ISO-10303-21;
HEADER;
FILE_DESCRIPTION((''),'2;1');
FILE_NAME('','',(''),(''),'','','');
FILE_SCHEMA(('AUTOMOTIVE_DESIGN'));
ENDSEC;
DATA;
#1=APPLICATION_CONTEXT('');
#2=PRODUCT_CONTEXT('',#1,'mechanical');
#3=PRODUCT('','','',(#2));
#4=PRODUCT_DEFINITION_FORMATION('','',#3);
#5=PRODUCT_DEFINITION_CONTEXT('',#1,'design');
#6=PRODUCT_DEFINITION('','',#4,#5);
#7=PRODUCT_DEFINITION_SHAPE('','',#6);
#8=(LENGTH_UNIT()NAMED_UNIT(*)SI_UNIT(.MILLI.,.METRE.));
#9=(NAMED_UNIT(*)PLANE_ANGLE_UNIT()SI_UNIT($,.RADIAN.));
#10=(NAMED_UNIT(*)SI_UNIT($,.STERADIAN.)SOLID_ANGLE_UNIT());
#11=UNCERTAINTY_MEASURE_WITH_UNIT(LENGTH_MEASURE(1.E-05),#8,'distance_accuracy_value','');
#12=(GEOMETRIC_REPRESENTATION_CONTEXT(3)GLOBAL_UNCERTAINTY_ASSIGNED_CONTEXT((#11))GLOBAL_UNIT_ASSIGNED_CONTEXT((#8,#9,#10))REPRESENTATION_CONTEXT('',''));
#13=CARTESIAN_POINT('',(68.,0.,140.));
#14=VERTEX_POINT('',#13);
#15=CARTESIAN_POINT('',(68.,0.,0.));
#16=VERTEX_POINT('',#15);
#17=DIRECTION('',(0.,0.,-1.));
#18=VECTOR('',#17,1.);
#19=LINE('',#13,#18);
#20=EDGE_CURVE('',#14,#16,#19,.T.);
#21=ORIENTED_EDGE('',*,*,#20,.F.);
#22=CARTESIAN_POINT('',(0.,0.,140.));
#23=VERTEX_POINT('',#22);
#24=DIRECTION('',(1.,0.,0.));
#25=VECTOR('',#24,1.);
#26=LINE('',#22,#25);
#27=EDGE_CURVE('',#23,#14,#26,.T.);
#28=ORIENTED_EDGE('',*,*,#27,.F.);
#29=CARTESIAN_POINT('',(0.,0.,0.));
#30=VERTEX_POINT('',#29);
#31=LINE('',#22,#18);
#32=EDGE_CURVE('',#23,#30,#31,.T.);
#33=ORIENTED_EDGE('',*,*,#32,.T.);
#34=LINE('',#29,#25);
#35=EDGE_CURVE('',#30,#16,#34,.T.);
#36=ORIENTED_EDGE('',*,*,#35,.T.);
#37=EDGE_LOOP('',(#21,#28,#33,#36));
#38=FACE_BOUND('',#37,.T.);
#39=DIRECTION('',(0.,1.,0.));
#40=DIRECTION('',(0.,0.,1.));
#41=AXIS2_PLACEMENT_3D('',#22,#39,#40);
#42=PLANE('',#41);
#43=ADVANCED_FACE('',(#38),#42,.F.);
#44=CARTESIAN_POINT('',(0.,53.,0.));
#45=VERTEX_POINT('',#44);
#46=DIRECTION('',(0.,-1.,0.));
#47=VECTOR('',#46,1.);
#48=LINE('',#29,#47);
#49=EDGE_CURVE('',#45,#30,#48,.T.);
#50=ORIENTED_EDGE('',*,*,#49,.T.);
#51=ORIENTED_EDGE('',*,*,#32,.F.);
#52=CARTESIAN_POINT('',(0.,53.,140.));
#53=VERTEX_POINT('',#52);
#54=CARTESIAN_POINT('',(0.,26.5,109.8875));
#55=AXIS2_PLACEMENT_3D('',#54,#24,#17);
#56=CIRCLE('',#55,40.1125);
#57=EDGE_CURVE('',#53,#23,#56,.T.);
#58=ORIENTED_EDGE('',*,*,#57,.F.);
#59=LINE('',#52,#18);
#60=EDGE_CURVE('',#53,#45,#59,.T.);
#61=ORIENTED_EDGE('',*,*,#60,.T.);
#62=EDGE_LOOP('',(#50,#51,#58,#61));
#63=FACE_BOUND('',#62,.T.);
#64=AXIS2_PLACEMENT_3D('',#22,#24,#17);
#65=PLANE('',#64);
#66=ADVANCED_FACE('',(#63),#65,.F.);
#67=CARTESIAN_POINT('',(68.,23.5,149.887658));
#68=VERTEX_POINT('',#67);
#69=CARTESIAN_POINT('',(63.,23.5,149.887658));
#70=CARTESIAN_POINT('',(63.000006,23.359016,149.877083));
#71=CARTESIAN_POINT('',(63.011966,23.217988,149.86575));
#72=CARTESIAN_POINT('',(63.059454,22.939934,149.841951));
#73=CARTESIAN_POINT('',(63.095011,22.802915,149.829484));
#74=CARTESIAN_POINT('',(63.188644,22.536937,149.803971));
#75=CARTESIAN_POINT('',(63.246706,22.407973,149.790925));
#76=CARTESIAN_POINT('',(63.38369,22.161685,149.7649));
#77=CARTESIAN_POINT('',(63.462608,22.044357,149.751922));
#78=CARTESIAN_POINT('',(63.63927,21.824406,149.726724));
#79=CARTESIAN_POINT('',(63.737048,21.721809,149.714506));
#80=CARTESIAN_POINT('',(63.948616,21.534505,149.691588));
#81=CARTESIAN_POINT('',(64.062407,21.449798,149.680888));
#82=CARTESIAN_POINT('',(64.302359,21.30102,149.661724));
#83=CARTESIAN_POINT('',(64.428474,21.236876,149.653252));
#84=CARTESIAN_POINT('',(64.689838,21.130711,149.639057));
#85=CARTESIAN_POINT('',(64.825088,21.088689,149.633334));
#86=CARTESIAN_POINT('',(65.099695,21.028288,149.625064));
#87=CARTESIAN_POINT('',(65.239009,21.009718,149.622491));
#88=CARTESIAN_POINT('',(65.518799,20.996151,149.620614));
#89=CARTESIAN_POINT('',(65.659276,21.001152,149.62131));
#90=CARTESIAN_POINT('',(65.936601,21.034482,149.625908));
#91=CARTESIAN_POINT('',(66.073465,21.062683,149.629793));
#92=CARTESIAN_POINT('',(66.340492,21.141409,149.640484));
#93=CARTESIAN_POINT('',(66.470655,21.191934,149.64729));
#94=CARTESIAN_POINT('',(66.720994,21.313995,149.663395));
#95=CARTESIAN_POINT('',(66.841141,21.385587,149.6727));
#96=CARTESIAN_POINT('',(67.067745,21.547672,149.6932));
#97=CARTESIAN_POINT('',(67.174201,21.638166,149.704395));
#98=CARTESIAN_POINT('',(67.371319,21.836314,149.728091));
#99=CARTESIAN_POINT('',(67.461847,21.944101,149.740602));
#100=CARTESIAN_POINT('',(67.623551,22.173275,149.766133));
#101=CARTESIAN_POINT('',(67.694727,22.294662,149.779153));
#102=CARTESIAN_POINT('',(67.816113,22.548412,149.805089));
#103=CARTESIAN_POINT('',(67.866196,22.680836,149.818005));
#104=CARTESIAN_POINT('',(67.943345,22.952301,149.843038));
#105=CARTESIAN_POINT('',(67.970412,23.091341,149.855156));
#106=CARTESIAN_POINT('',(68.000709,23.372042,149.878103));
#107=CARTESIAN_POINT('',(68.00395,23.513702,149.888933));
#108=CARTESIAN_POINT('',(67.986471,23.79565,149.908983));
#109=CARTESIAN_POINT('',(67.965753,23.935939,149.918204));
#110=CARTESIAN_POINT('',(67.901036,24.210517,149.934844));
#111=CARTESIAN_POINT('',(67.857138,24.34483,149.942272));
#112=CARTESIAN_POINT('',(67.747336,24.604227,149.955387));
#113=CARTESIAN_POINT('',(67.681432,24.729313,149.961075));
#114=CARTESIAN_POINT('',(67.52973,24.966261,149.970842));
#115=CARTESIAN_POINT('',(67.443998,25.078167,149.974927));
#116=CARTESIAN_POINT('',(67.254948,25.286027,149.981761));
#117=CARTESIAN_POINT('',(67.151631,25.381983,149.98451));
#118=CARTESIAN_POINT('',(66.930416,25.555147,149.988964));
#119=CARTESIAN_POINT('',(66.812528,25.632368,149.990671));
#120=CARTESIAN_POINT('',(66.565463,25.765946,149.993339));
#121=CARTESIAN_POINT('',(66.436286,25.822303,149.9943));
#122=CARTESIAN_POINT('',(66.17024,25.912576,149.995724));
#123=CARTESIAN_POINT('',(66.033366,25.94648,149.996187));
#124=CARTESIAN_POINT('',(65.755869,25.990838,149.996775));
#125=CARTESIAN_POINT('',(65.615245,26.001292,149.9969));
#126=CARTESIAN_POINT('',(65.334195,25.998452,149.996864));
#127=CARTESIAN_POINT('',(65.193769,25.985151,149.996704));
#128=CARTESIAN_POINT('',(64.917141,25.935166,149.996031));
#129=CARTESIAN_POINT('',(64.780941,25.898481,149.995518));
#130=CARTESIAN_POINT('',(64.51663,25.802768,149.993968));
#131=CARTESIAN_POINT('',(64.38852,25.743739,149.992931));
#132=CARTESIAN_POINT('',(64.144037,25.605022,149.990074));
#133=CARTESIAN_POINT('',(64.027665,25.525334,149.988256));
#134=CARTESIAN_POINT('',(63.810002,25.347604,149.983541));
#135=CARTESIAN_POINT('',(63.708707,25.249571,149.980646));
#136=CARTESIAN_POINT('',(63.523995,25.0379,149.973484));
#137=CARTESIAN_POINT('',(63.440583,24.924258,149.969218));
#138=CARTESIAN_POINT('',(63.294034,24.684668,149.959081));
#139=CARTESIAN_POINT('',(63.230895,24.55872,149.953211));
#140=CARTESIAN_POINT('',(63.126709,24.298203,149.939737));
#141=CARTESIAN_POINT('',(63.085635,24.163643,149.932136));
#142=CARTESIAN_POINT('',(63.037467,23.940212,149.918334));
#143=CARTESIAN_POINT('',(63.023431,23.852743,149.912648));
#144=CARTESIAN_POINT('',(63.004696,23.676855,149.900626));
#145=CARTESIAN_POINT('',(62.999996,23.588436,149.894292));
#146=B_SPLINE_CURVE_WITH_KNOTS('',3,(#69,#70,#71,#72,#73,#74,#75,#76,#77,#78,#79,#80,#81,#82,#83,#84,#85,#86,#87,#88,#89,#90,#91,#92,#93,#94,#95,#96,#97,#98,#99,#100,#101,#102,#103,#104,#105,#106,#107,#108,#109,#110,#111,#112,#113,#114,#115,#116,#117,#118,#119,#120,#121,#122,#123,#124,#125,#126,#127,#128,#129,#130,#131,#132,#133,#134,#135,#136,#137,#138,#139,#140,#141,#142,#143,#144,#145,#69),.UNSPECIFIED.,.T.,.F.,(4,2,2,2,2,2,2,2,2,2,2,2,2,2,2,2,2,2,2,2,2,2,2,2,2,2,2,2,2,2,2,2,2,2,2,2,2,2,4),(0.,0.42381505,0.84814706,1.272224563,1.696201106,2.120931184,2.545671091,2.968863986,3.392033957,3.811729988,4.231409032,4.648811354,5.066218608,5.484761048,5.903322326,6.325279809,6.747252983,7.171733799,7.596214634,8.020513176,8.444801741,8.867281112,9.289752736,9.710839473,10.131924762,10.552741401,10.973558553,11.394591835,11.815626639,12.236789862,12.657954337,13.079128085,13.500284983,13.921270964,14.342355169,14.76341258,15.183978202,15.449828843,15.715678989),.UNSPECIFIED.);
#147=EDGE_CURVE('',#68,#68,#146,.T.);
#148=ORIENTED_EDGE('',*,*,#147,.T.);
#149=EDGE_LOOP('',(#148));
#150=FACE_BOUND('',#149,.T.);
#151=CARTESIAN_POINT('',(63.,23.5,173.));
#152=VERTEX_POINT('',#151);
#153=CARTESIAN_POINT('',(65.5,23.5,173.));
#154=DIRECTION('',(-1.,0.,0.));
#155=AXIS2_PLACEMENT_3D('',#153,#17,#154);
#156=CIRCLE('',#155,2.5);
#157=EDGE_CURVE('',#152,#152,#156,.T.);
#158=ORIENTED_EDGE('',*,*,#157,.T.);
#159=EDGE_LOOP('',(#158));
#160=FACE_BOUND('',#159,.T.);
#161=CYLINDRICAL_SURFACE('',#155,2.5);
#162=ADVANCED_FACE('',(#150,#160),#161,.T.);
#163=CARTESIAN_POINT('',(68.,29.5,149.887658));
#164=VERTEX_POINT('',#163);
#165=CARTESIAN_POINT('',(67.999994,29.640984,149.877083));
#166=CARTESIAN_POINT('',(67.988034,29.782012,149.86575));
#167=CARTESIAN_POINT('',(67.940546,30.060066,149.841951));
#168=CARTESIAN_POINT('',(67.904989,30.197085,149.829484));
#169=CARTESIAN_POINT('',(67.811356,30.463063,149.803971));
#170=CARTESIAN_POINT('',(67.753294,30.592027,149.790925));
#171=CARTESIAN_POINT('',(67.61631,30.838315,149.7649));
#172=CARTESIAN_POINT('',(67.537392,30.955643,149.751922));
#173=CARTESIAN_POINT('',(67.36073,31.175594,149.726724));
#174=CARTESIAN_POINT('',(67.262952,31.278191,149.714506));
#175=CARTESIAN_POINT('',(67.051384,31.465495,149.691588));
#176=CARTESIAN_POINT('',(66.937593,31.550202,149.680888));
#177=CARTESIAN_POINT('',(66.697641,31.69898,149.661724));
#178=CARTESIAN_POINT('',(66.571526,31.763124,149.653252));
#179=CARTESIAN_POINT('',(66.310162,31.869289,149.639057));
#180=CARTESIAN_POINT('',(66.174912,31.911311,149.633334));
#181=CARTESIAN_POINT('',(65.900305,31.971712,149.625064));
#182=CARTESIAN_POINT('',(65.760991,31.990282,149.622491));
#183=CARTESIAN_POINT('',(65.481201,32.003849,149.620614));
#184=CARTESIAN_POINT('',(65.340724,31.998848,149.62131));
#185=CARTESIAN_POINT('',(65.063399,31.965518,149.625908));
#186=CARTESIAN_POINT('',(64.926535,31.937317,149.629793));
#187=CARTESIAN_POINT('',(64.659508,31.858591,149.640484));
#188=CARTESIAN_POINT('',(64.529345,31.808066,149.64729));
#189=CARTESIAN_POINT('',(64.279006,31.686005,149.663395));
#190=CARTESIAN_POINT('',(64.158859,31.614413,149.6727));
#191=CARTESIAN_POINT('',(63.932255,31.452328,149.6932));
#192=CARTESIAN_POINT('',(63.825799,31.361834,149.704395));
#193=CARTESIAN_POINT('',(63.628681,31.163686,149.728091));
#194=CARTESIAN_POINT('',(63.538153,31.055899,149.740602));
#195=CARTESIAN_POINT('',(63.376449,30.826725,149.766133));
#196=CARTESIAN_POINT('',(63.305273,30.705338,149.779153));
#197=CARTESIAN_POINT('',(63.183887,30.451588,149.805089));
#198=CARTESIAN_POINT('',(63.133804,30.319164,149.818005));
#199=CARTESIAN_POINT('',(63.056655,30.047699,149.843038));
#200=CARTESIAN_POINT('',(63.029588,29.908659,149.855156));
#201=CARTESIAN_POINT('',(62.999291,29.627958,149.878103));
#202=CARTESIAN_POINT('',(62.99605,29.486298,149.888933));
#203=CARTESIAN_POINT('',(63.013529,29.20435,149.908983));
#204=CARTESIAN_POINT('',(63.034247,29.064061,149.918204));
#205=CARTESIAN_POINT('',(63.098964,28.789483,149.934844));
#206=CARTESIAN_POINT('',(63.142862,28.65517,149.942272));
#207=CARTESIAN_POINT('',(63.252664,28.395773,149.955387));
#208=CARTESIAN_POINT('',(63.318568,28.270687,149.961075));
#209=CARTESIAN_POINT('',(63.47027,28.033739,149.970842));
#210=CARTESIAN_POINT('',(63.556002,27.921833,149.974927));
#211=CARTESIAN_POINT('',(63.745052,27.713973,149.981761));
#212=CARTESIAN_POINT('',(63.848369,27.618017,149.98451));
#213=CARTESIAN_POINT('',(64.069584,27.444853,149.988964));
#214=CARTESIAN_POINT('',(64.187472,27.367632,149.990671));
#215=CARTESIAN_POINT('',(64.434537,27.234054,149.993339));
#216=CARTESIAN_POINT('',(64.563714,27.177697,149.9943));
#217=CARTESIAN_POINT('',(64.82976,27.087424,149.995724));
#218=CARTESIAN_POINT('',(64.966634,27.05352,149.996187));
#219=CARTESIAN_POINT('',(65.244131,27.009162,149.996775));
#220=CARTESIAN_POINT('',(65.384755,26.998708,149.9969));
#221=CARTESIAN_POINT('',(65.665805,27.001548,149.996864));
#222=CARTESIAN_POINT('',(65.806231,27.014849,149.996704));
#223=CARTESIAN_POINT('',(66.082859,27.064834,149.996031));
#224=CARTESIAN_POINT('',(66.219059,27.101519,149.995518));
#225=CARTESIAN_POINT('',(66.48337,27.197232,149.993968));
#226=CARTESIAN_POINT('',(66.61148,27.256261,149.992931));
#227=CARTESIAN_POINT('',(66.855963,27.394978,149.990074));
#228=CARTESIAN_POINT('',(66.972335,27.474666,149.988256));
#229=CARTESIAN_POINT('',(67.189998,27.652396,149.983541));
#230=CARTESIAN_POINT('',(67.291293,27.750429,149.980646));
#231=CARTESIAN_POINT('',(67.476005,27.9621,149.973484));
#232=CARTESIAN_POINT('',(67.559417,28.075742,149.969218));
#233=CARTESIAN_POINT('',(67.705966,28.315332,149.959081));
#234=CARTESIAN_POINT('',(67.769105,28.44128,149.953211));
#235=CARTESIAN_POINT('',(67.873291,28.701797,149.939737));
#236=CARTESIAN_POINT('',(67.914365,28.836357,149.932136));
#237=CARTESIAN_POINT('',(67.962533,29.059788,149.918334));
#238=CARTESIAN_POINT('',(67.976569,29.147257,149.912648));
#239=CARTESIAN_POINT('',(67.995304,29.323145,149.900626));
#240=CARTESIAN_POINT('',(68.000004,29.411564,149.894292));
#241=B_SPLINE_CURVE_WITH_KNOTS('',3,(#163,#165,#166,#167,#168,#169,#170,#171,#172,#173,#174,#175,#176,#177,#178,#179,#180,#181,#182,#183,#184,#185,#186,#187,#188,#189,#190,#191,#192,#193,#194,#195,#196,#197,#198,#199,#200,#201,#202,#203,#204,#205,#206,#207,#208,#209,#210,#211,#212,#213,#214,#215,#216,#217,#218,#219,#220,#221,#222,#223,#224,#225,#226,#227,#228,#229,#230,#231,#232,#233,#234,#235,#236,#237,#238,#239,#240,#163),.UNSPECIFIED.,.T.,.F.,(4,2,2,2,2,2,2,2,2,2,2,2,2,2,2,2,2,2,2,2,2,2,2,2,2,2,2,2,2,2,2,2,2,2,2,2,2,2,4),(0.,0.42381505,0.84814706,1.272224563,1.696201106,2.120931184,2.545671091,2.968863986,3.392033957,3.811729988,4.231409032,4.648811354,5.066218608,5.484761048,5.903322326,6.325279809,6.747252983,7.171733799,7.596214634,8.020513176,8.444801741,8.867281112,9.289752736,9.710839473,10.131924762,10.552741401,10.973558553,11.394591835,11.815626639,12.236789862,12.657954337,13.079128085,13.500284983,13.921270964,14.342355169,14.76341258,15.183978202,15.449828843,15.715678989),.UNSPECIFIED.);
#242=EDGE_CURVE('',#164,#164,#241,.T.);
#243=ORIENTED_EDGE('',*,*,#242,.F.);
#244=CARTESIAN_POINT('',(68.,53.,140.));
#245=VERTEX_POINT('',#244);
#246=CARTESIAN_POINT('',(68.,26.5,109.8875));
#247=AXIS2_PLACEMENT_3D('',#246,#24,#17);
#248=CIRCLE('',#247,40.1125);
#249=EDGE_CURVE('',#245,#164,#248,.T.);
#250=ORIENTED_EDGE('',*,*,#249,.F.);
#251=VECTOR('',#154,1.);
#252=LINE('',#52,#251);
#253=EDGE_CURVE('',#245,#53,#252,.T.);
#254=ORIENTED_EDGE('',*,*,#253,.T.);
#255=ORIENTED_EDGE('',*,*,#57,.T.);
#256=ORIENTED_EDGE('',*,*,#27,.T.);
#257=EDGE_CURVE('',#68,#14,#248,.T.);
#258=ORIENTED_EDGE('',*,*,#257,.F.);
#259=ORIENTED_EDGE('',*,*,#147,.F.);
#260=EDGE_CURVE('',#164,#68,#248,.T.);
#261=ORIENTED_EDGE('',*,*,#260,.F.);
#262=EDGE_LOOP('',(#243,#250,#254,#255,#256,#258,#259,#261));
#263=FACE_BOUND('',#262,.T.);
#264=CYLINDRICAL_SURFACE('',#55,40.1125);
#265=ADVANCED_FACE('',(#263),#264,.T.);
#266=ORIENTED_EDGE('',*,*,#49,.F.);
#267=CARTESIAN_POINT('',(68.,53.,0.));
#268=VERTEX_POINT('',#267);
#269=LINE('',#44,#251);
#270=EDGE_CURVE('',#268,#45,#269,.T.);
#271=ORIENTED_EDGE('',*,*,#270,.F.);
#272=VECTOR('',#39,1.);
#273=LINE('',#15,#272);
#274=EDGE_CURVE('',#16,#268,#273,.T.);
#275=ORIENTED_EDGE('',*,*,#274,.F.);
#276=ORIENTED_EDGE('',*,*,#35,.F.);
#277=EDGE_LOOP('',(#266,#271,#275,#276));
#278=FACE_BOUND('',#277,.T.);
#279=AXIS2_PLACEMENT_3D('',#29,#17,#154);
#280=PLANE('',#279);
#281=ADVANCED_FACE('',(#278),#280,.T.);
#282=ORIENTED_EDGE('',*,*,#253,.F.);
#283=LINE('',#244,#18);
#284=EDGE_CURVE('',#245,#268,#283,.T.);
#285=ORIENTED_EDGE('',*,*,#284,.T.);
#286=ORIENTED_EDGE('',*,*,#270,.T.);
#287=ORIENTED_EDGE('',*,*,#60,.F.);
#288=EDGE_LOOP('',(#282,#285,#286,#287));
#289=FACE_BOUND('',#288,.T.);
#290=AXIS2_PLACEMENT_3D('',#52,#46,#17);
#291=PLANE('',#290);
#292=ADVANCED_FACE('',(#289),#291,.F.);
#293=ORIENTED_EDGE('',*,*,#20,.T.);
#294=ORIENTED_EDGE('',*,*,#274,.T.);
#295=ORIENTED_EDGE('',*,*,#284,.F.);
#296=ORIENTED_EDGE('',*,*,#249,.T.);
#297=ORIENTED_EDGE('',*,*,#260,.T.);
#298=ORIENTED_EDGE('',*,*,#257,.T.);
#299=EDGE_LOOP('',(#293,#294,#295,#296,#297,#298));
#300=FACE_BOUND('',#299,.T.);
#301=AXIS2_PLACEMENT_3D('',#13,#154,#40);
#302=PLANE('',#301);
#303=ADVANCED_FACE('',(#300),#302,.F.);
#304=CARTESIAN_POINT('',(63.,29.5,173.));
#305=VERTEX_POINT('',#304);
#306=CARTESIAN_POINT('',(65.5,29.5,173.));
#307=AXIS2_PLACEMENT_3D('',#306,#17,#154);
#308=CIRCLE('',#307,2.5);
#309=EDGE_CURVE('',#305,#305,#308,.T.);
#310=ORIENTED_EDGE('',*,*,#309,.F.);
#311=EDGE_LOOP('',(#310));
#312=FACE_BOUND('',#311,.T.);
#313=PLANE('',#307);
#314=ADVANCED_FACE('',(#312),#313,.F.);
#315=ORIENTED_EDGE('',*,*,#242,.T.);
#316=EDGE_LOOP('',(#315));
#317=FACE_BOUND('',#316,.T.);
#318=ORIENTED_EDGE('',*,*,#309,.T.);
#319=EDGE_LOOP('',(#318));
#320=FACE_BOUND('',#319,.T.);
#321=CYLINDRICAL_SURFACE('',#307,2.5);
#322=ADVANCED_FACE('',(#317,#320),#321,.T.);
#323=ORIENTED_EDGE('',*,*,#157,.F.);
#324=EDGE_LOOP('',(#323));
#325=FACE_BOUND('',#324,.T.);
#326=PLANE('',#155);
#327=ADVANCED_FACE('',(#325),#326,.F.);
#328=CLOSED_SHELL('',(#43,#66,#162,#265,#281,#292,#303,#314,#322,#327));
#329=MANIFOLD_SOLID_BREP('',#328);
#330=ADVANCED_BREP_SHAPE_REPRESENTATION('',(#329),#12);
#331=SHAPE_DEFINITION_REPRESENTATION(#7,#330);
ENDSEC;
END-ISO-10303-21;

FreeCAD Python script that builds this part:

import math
import FreeCAD as App
import Part
import Sketcher

V = App.Vector
Q = App.Units.Quantity


def add_polygon(sketch, points):
    """Adds a closed chain of lines whose ends are joined by coincident constraints."""
    first, n = sketch.GeometryCount, len(points)
    for a, b in zip(points, points[1:] + points[:1]):
        sketch.addGeometry(Part.LineSegment(App.Vector(*a, 0), App.Vector(*b, 0)), False)
    for i in range(n):
        sketch.addConstraint(Sketcher.Constraint("Coincident", first + i, 2, first + (i + 1) % n, 1))

doc = App.newDocument("Part")
body = doc.addObject("PartDesign::Body", "Body")

# Sketch on XY plane
sketch1 = doc.addObject("Sketcher::SketchObject", "Sketch")
body.addObject(sketch1)
sketch1.AttachmentSupport = (doc.XY_Plane, [""])
sketch1.MapMode = "FlatFace"
add_polygon(sketch1, [(0, 53), (0, 0), (68, 0), (68, 53)])  # lines 0-3
sketch1.addConstraint(Sketcher.Constraint("Vertical", 0))
sketch1.addConstraint(Sketcher.Constraint("Horizontal", 1))
sketch1.addConstraint(Sketcher.Constraint("Vertical", 2))
sketch1.addConstraint(Sketcher.Constraint("Horizontal", 3))
sketch1.addConstraint(Sketcher.Constraint("Coincident", 0, 2, -1, 1))
sketch1.addConstraint(Sketcher.Constraint("DistanceX", 1, 1, 1, 2, Q("68 mm")))
sketch1.addConstraint(Sketcher.Constraint("DistanceY", 0, 2, 0, 1, Q("53 mm")))
pad1 = doc.addObject("PartDesign::Pad", "Pad")
body.addObject(pad1)
pad1.Profile = sketch1
pad1.Length = 140

# Sketch on YZ plane
sketch2 = doc.addObject("Sketcher::SketchObject", "Sketch001")
body.addObject(sketch2)
sketch2.AttachmentSupport = (doc.YZ_Plane, [""])
sketch2.MapMode = "FlatFace"
sketch2.AttachmentOffset = App.Placement(V(0, 0, 68), App.Rotation())
sketch2.addGeometry(Part.LineSegment(V(0, 140, 0), V(53, 140, 0)), False)
sketch2.addGeometry(Part.ArcOfCircle(Part.Circle(V(26, 110, 0), V(0, 0, 1), 40), math.radians(49), math.radians(131)), False)
sketch2.addConstraint(Sketcher.Constraint("Coincident", 0, 1, 1, 2))
sketch2.addConstraint(Sketcher.Constraint("Coincident", 1, 1, 0, 2))
sketch2.addConstraint(Sketcher.Constraint("Horizontal", 0))
sketch2.addConstraint(Sketcher.Constraint("PointOnObject", 0, 1, -2))
sketch2.addConstraint(Sketcher.Constraint("DistanceX", 0, 1, 0, 2, Q("53 mm")))
sketch2.addConstraint(Sketcher.Constraint("DistanceY", -1, 1, 0, 1, Q("140 mm")))
sketch2.addConstraint(Sketcher.Constraint("Radius", 1, Q("40.1125 mm")))
pad2 = doc.addObject("PartDesign::Pad", "Pad001")
body.addObject(pad2)
pad2.Profile = sketch2
pad2.Length = 68
pad2.Reversed = True

# Sketch on XY plane
sketch3 = doc.addObject("Sketcher::SketchObject", "Sketch002")
body.addObject(sketch3)
sketch3.AttachmentSupport = (doc.XY_Plane, [""])
sketch3.MapMode = "FlatFace"
sketch3.addGeometry(Part.Circle(V(65.5, 29.5, 0), V(0, 0, 1), 2.5), False)
sketch3.addGeometry(Part.Circle(V(65.5, 23.5, 0), V(0, 0, 1), 2.5), False)
sketch3.addConstraint(Sketcher.Constraint("Equal", 0, 1))
sketch3.addConstraint(Sketcher.Constraint("Vertical", 0, 3, 1, 3))
sketch3.addConstraint(Sketcher.Constraint("Diameter", 0, Q("5 mm")))
sketch3.addConstraint(Sketcher.Constraint("DistanceY", 1, 3, 0, 3, Q("6 mm")))
sketch3.addConstraint(Sketcher.Constraint("DistanceX", -1, 1, 0, 3, Q("65.5 mm")))
sketch3.addConstraint(Sketcher.Constraint("DistanceY", -1, 1, 0, 3, Q("29.5 mm")))
pad3 = doc.addObject("PartDesign::Pad", "Pad002")
body.addObject(pad3)
pad3.Profile = sketch3
pad3.Length = 173

doc.recompute()
